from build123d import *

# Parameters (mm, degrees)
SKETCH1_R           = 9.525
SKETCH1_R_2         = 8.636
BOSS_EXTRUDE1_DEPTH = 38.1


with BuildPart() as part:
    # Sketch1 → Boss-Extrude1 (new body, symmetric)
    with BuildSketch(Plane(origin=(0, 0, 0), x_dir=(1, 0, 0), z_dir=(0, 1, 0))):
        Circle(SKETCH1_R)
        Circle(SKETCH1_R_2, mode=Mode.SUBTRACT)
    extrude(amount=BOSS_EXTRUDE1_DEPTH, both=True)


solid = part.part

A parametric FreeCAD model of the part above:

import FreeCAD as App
import Part
import Sketcher
Q = App.Units.Quantity

doc = App.newDocument("Part")
body = doc.addObject("PartDesign::Body", "Body")

sketch1 = body.newObject("Sketcher::SketchObject", "Sketch")
sketch1.AttachmentSupport = (doc.getObject("XZ_Plane"), [""])
sketch1.MapMode = "FlatFace"
sketch1.addGeometry(Part.Circle(App.Vector(0, 0, 0), App.Vector(0, 0, 1), 9.525), False)
sketch1.addGeometry(Part.Circle(App.Vector(0, 0, 0), App.Vector(0, 0, 1), 8.636), False)
sketch1.addConstraint(Sketcher.Constraint("Coincident", 0, 3, -1, 1))
sketch1.addConstraint(Sketcher.Constraint("Coincident", 1, 3, -1, 1))
sketch1.addConstraint(Sketcher.Constraint("Diameter", 0, Q("0.75 in")))
sketch1.addConstraint(Sketcher.Constraint("Diameter", 1, Q("0.68 in")))
pad1 = body.newObject("PartDesign::Pad", "Pad")
pad1.Profile = sketch1
pad1.Length = Q("3 in")
pad1.Midplane = True

doc.recompute()
